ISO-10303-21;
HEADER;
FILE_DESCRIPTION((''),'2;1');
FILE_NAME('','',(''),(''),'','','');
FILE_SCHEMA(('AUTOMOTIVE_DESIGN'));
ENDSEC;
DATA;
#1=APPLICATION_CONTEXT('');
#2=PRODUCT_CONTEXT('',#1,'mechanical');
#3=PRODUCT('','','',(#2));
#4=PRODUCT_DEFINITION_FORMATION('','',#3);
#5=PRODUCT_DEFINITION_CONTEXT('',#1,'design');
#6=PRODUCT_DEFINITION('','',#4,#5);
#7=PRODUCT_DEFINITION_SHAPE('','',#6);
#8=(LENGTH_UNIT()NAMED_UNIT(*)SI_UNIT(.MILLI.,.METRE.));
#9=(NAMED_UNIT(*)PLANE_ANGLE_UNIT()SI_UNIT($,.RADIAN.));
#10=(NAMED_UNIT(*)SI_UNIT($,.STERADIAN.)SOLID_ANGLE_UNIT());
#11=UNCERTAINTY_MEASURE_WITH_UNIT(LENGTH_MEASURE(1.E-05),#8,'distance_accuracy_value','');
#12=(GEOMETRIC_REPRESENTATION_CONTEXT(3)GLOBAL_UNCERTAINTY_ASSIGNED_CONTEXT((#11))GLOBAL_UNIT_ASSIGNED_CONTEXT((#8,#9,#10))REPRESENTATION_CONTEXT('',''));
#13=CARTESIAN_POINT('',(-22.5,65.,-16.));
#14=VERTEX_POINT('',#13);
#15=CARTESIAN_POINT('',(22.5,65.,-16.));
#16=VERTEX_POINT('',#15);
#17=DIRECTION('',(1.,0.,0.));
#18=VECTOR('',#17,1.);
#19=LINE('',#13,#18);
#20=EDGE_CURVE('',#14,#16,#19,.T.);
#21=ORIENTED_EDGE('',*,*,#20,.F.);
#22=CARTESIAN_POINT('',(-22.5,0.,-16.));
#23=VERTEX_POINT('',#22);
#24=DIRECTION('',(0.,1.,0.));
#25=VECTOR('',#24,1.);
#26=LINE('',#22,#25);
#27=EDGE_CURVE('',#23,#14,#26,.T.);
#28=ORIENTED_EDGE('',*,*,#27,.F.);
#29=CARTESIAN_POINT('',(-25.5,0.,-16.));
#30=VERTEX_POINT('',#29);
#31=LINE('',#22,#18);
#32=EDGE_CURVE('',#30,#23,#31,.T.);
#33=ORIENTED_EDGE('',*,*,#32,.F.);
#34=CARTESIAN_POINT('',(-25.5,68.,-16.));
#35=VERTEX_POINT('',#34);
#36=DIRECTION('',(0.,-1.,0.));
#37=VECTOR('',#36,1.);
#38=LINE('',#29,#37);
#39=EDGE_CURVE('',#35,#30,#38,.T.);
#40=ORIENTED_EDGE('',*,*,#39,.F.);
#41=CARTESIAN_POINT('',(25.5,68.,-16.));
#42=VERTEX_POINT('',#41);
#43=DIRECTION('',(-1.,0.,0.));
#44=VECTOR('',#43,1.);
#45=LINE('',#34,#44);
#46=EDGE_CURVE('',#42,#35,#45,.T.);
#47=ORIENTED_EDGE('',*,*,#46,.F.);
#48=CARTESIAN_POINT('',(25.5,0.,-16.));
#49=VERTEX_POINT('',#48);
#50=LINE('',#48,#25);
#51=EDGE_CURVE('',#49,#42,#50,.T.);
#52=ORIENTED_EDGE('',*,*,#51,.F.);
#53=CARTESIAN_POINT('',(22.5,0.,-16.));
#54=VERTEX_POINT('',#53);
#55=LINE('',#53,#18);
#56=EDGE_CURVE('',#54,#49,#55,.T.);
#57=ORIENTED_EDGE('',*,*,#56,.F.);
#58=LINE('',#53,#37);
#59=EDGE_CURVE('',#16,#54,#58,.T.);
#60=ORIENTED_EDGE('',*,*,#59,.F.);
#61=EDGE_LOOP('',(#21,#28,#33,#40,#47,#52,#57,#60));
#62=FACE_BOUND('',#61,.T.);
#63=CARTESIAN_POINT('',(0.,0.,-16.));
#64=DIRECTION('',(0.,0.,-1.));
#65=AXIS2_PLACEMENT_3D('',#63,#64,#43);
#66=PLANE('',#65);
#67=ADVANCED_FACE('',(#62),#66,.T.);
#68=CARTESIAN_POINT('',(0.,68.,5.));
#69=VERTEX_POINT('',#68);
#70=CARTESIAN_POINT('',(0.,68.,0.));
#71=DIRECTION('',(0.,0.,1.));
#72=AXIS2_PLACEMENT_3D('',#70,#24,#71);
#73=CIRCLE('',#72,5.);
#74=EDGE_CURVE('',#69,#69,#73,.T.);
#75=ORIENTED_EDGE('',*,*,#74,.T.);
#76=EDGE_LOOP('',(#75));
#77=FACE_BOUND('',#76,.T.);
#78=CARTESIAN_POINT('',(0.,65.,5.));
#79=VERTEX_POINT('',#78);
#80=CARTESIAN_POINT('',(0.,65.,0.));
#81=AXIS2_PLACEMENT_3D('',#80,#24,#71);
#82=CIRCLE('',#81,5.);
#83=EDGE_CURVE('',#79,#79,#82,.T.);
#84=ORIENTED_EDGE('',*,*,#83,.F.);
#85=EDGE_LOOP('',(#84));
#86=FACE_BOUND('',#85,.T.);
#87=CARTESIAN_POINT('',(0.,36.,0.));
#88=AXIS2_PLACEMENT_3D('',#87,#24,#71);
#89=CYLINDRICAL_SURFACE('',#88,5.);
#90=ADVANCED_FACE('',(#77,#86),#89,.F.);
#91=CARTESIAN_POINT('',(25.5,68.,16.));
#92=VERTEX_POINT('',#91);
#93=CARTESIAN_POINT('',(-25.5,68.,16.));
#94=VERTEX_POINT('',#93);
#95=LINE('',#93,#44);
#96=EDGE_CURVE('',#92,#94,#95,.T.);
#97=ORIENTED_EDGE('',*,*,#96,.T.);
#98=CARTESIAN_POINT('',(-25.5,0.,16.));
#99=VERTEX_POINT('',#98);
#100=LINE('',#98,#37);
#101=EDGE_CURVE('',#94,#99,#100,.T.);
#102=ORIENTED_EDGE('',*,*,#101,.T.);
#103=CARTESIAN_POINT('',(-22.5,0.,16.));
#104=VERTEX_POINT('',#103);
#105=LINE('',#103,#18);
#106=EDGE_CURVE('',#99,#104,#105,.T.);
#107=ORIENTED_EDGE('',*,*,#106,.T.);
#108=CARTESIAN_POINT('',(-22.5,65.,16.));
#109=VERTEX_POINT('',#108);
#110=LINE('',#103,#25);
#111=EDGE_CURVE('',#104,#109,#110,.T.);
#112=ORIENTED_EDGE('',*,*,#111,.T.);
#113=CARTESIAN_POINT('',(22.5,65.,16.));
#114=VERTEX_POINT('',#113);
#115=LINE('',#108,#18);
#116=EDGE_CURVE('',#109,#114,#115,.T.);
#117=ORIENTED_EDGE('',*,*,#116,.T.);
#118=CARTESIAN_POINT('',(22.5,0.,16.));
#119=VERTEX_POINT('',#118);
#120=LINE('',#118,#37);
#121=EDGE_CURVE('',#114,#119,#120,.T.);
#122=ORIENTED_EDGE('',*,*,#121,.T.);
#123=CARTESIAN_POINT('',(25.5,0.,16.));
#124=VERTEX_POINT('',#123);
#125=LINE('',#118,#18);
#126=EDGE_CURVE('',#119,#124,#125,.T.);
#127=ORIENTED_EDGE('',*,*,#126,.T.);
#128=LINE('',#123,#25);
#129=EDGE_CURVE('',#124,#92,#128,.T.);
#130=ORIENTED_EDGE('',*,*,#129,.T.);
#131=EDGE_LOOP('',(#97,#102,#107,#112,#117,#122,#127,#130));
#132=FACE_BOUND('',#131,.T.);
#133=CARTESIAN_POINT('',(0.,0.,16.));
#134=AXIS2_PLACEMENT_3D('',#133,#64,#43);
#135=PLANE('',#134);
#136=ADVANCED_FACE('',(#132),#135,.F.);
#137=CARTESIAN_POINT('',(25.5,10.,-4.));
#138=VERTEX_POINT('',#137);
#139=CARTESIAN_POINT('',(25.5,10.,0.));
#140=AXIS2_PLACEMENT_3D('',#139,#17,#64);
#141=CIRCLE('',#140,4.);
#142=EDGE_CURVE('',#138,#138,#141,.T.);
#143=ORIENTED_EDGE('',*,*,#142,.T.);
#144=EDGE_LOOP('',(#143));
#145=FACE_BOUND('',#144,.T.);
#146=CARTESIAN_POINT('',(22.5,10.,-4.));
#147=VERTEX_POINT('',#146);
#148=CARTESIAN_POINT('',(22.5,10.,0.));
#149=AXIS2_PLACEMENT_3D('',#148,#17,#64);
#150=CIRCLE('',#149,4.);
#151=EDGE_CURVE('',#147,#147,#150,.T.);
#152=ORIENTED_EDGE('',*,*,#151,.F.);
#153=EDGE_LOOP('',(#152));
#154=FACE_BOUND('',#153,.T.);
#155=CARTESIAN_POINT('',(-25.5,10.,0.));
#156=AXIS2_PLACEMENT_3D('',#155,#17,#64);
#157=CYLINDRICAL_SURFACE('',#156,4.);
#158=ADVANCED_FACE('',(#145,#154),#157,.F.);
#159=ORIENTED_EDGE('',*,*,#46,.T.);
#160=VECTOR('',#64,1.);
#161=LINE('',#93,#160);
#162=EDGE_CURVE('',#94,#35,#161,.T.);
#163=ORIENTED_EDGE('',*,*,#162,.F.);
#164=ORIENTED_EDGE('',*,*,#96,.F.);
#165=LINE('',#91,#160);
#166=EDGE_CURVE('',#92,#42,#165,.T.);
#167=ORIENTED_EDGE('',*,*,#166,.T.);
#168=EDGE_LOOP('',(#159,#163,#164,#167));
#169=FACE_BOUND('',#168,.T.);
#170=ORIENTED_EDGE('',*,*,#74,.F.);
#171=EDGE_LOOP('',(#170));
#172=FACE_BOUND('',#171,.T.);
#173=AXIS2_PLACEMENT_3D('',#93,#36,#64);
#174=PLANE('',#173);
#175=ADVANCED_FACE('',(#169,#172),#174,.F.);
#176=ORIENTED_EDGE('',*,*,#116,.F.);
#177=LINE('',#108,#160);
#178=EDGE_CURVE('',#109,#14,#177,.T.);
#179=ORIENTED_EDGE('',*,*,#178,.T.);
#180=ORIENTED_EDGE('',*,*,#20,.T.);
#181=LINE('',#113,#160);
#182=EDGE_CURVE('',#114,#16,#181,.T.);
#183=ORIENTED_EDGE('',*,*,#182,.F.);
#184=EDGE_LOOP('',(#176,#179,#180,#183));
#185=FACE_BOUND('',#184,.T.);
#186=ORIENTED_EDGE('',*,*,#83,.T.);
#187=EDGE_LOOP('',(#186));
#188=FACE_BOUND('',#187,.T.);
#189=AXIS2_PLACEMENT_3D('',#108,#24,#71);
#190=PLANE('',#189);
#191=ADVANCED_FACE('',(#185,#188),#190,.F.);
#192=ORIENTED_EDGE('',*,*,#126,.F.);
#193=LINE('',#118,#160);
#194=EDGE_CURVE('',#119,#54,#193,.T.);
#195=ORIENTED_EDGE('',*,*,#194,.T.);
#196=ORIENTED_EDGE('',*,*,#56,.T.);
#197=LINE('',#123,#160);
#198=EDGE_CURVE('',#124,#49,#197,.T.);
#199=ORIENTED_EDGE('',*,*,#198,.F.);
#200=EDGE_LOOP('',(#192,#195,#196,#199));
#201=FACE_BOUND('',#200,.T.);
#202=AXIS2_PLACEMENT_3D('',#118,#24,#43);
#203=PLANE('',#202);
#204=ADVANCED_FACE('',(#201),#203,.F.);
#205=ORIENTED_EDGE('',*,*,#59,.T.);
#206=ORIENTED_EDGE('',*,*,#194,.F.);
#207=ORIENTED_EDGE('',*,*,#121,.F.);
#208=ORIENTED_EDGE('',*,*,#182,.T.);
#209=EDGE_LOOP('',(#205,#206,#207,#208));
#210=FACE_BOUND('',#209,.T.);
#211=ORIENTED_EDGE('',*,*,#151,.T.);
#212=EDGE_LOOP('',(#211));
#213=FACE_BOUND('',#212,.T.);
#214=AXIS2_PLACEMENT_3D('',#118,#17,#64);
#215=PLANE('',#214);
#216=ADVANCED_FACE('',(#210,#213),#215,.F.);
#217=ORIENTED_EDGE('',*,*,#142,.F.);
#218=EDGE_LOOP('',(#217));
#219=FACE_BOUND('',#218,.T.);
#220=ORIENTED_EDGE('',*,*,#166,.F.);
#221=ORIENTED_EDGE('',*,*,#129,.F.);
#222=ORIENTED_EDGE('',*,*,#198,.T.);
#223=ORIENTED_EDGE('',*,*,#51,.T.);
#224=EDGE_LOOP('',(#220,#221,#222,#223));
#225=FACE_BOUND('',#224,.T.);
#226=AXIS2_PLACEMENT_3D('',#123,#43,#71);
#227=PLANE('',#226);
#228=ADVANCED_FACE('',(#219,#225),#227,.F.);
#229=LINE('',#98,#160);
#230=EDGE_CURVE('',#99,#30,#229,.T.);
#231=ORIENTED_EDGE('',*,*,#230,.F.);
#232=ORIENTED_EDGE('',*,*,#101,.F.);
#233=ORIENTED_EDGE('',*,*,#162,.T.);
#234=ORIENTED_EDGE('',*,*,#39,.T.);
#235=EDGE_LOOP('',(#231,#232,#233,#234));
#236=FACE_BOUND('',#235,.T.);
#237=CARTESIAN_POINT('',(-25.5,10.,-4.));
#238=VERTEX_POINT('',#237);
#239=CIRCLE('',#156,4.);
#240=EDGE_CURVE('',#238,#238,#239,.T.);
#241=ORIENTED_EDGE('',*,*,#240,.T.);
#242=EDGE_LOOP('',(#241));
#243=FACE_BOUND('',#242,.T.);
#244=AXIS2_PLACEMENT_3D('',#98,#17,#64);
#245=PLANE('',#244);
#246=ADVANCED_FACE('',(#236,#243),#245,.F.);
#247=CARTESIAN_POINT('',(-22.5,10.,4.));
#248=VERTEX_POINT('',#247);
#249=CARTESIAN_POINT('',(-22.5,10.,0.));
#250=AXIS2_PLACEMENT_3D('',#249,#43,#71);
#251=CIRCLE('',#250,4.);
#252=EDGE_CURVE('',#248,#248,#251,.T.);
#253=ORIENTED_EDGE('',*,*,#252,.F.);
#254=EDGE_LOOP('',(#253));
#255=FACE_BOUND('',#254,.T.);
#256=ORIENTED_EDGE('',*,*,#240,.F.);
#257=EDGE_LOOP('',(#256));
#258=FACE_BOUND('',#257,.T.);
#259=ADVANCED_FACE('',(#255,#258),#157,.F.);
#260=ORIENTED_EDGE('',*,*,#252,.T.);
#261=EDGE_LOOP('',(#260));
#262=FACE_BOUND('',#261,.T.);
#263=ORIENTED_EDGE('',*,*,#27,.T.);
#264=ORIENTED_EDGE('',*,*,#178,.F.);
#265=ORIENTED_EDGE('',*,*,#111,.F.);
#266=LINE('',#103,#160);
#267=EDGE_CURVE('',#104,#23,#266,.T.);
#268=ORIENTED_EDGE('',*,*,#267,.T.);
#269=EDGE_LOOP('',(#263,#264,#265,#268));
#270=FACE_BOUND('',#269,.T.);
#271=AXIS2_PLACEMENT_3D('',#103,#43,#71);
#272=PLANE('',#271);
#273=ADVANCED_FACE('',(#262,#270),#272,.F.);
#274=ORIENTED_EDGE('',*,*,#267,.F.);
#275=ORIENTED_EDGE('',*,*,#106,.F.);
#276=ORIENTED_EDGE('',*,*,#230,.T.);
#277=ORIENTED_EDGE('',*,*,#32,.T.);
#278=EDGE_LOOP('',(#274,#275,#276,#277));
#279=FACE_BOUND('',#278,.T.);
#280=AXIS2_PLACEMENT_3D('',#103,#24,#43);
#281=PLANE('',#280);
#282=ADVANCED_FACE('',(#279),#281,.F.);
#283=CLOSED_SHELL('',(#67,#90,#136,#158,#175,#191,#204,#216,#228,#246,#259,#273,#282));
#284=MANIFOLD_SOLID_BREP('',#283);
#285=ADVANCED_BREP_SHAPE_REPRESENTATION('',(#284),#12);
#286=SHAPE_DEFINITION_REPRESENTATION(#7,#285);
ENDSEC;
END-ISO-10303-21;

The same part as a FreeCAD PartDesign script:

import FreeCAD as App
import Part
import Sketcher

V = App.Vector
Q = App.Units.Quantity

doc = App.newDocument("Part")
body = doc.addObject("PartDesign::Body", "Body")

sketch1 = body.newObject("Sketcher::SketchObject", "Sketch")
sketch1.AttachmentSupport = (doc.getObject("XY_Plane"), [""])
sketch1.MapMode = "FlatFace"
sketch1.addGeometry(Part.LineSegment(V(-22.5, 0, 0), V(-22.5, 65, 0)), False)
sketch1.addGeometry(Part.LineSegment(V(-22.5, 65, 0), V(22.5, 65, 0)), False)
sketch1.addGeometry(Part.LineSegment(V(22.5, 65, 0), V(22.5, 0, 0)), False)
sketch1.addGeometry(Part.LineSegment(V(22.5, 0, 0), V(25.5, 0, 0)), False)
sketch1.addGeometry(Part.LineSegment(V(25.5, 0, 0), V(25.5, 68, 0)), False)
sketch1.addGeometry(Part.LineSegment(V(25.5, 68, 0), V(-25.5, 68, 0)), False)
sketch1.addGeometry(Part.LineSegment(V(-25.5, 68, 0), V(-25.5, 0, 0)), False)
sketch1.addGeometry(Part.LineSegment(V(-25.5, 0, 0), V(-22.5, 0, 0)), False)
sketch1.addConstraint(Sketcher.Constraint("Coincident", 0, 2, 1, 1))
sketch1.addConstraint(Sketcher.Constraint("Coincident", 1, 2, 2, 1))
sketch1.addConstraint(Sketcher.Constraint("Coincident", 2, 2, 3, 1))
sketch1.addConstraint(Sketcher.Constraint("Coincident", 3, 2, 4, 1))
sketch1.addConstraint(Sketcher.Constraint("Coincident", 4, 2, 5, 1))
sketch1.addConstraint(Sketcher.Constraint("Coincident", 5, 2, 6, 1))
sketch1.addConstraint(Sketcher.Constraint("Coincident", 6, 2, 7, 1))
sketch1.addConstraint(Sketcher.Constraint("Coincident", 7, 2, 0, 1))
sketch1.addConstraint(Sketcher.Constraint("Vertical", 0))
sketch1.addConstraint(Sketcher.Constraint("Horizontal", 1))
sketch1.addConstraint(Sketcher.Constraint("Vertical", 2))
sketch1.addConstraint(Sketcher.Constraint("Horizontal", 3))
sketch1.addConstraint(Sketcher.Constraint("Vertical", 4))
sketch1.addConstraint(Sketcher.Constraint("Horizontal", 5))
sketch1.addConstraint(Sketcher.Constraint("Vertical", 6))
sketch1.addConstraint(Sketcher.Constraint("Horizontal", 7))
sketch1.addConstraint(Sketcher.Constraint("Symmetric", 3, 2, 6, 2, -1, 1))
sketch1.addConstraint(Sketcher.Constraint("Symmetric", 2, 2, 7, 2, -2))
sketch1.addConstraint(Sketcher.Constraint("DistanceX", 1, 1, 1, 2, Q("45 mm")))
sketch1.addConstraint(Sketcher.Constraint("DistanceX", 3, 1, 3, 2, Q("3 mm")))
sketch1.addConstraint(Sketcher.Constraint("DistanceY", 0, 1, 0, 2, Q("65 mm")))
sketch1.addConstraint(Sketcher.Constraint("DistanceY", 4, 1, 4, 2, Q("68 mm")))
pad1 = body.newObject("PartDesign::Pad", "Pad")
pad1.Profile = sketch1
pad1.Length = 32
pad1.Midplane = True

sketch2 = body.newObject("Sketcher::SketchObject", "Sketch001")
sketch2.AttachmentSupport = (doc.getObject("YZ_Plane"), [""])
sketch2.MapMode = "FlatFace"
sketch2.AttachmentOffset = App.Placement(V(0, 0, 25.5), App.Rotation())
sketch2.addGeometry(Part.Circle(V(10, 0, 0), V(0, 0, 1), 4), False)
sketch2.addConstraint(Sketcher.Constraint("PointOnObject", 0, 3, -1))
sketch2.addConstraint(Sketcher.Constraint("Diameter", 0, Q("8 mm")))
sketch2.addConstraint(Sketcher.Constraint("DistanceX", -1, 1, 0, 3, Q("10 mm")))
pocket1 = body.newObject("PartDesign::Pocket", "Pocket")
pocket1.Profile = sketch2
pocket1.Type = "ThroughAll"

sketch3 = body.newObject("Sketcher::SketchObject", "Sketch002")
sketch3.AttachmentSupport = (doc.getObject("XZ_Plane"), [""])
sketch3.MapMode = "FlatFace"
sketch3.AttachmentOffset = App.Placement(V(0, 0, -68), App.Rotation())
sketch3.addGeometry(Part.Circle(V(0, 0, 0), V(0, 0, 1), 5), False)
sketch3.addConstraint(Sketcher.Constraint("Coincident", 0, 3, -1, 1))
sketch3.addConstraint(Sketcher.Constraint("Diameter", 0, Q("10 mm")))
pocket2 = body.newObject("PartDesign::Pocket", "Pocket001")
pocket2.Profile = sketch3
pocket2.Length = 32
pocket2.Reversed = True

doc.recompute()
